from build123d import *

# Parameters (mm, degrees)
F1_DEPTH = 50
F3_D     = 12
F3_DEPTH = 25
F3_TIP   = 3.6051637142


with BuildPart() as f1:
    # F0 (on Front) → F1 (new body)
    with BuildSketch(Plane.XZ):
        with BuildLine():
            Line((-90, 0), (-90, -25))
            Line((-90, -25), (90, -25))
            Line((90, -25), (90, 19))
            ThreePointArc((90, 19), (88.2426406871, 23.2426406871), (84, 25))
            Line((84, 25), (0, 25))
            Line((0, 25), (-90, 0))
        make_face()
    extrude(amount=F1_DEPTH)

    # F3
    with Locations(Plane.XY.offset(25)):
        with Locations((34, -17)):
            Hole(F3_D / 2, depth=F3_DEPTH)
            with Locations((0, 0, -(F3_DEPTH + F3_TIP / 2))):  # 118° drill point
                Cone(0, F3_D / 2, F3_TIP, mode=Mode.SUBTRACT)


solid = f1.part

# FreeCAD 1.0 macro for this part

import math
import FreeCAD as App
import Part
import Sketcher
Q = App.Units.Quantity

doc = App.newDocument("Part")
body = doc.addObject("PartDesign::Body", "Body")

sketch1 = body.newObject("Sketcher::SketchObject", "Sketch")
sketch1.AttachmentSupport = (doc.getObject("XZ_Plane"), [""])
sketch1.MapMode = "FlatFace"
sketch1.addGeometry(Part.LineSegment(App.Vector(-90, 0, 0), App.Vector(-90, -25, 0)), False)
sketch1.addGeometry(Part.LineSegment(App.Vector(-90, -25, 0), App.Vector(90, -25, 0)), False)
sketch1.addGeometry(Part.LineSegment(App.Vector(90, -25, 0), App.Vector(90, 19, 0)), False)
sketch1.addGeometry(Part.ArcOfCircle(Part.Circle(App.Vector(84, 19, 0), App.Vector(0, 0, 1), 6), math.radians(0), math.radians(90)), False)
sketch1.addGeometry(Part.LineSegment(App.Vector(84, 25, 0), App.Vector(0, 25, 0)), False)
sketch1.addGeometry(Part.LineSegment(App.Vector(0, 25, 0), App.Vector(-90, 0, 0)), False)
sketch1.addConstraint(Sketcher.Constraint("Coincident", 0, 2, 1, 1))
sketch1.addConstraint(Sketcher.Constraint("Coincident", 1, 2, 2, 1))
sketch1.addConstraint(Sketcher.Constraint("Tangent", 2, 2, 3, 1))
sketch1.addConstraint(Sketcher.Constraint("Tangent", 3, 2, 4, 1))
sketch1.addConstraint(Sketcher.Constraint("Coincident", 4, 2, 5, 1))
sketch1.addConstraint(Sketcher.Constraint("Coincident", 5, 2, 0, 1))
sketch1.addConstraint(Sketcher.Constraint("Vertical", 0))
sketch1.addConstraint(Sketcher.Constraint("Horizontal", 1))
sketch1.addConstraint(Sketcher.Constraint("Vertical", 2))
sketch1.addConstraint(Sketcher.Constraint("Horizontal", 4))
sketch1.addConstraint(Sketcher.Constraint("PointOnObject", 4, 2, -2))
sketch1.addConstraint(Sketcher.Constraint("PointOnObject", 5, 2, -1))
sketch1.addConstraint(Sketcher.Constraint("Radius", 3, Q("6 mm")))
sketch1.addConstraint(Sketcher.Constraint("DistanceX", 1, 1, 1, 2, Q("180 mm")))
sketch1.addConstraint(Sketcher.Constraint("DistanceX", 4, 2, 4, 1, Q("84 mm")))
sketch1.addConstraint(Sketcher.Constraint("DistanceY", 0, 2, 0, 1, Q("25 mm")))
sketch1.addConstraint(Sketcher.Constraint("DistanceY", 2, 1, 2, 2, Q("44 mm")))
pad1 = body.newObject("PartDesign::Pad", "Pad")
pad1.Profile = sketch1
pad1.Length = 50

sketch2 = body.newObject("Sketcher::SketchObject", "Sketch001")
sketch2.AttachmentSupport = (doc.getObject("XY_Plane"), [""])
sketch2.MapMode = "FlatFace"
sketch2.AttachmentOffset = App.Placement(App.Vector(0, 0, 25), App.Rotation())
sketch2.addGeometry(Part.Circle(App.Vector(34, -17, 0), App.Vector(0, 0, 1), 6), False)
sketch2.addConstraint(Sketcher.Constraint("Diameter", 0, Q("12 mm")))
sketch2.addConstraint(Sketcher.Constraint("DistanceX", -1, 1, 0, 3, Q("34 mm")))
sketch2.addConstraint(Sketcher.Constraint("DistanceY", 0, 3, -1, 1, Q("17 mm")))
doc.recompute()
hole = body.newObject("PartDesign::Hole", "Hole")
hole.Profile = sketch2
hole.ThreadType = "None"
hole.Diameter = 12
hole.DepthType = "Dimension"
hole.Depth = 25
hole.DrillPoint = "Angled"
hole.DrillPointAngle = 118

doc.recompute()
